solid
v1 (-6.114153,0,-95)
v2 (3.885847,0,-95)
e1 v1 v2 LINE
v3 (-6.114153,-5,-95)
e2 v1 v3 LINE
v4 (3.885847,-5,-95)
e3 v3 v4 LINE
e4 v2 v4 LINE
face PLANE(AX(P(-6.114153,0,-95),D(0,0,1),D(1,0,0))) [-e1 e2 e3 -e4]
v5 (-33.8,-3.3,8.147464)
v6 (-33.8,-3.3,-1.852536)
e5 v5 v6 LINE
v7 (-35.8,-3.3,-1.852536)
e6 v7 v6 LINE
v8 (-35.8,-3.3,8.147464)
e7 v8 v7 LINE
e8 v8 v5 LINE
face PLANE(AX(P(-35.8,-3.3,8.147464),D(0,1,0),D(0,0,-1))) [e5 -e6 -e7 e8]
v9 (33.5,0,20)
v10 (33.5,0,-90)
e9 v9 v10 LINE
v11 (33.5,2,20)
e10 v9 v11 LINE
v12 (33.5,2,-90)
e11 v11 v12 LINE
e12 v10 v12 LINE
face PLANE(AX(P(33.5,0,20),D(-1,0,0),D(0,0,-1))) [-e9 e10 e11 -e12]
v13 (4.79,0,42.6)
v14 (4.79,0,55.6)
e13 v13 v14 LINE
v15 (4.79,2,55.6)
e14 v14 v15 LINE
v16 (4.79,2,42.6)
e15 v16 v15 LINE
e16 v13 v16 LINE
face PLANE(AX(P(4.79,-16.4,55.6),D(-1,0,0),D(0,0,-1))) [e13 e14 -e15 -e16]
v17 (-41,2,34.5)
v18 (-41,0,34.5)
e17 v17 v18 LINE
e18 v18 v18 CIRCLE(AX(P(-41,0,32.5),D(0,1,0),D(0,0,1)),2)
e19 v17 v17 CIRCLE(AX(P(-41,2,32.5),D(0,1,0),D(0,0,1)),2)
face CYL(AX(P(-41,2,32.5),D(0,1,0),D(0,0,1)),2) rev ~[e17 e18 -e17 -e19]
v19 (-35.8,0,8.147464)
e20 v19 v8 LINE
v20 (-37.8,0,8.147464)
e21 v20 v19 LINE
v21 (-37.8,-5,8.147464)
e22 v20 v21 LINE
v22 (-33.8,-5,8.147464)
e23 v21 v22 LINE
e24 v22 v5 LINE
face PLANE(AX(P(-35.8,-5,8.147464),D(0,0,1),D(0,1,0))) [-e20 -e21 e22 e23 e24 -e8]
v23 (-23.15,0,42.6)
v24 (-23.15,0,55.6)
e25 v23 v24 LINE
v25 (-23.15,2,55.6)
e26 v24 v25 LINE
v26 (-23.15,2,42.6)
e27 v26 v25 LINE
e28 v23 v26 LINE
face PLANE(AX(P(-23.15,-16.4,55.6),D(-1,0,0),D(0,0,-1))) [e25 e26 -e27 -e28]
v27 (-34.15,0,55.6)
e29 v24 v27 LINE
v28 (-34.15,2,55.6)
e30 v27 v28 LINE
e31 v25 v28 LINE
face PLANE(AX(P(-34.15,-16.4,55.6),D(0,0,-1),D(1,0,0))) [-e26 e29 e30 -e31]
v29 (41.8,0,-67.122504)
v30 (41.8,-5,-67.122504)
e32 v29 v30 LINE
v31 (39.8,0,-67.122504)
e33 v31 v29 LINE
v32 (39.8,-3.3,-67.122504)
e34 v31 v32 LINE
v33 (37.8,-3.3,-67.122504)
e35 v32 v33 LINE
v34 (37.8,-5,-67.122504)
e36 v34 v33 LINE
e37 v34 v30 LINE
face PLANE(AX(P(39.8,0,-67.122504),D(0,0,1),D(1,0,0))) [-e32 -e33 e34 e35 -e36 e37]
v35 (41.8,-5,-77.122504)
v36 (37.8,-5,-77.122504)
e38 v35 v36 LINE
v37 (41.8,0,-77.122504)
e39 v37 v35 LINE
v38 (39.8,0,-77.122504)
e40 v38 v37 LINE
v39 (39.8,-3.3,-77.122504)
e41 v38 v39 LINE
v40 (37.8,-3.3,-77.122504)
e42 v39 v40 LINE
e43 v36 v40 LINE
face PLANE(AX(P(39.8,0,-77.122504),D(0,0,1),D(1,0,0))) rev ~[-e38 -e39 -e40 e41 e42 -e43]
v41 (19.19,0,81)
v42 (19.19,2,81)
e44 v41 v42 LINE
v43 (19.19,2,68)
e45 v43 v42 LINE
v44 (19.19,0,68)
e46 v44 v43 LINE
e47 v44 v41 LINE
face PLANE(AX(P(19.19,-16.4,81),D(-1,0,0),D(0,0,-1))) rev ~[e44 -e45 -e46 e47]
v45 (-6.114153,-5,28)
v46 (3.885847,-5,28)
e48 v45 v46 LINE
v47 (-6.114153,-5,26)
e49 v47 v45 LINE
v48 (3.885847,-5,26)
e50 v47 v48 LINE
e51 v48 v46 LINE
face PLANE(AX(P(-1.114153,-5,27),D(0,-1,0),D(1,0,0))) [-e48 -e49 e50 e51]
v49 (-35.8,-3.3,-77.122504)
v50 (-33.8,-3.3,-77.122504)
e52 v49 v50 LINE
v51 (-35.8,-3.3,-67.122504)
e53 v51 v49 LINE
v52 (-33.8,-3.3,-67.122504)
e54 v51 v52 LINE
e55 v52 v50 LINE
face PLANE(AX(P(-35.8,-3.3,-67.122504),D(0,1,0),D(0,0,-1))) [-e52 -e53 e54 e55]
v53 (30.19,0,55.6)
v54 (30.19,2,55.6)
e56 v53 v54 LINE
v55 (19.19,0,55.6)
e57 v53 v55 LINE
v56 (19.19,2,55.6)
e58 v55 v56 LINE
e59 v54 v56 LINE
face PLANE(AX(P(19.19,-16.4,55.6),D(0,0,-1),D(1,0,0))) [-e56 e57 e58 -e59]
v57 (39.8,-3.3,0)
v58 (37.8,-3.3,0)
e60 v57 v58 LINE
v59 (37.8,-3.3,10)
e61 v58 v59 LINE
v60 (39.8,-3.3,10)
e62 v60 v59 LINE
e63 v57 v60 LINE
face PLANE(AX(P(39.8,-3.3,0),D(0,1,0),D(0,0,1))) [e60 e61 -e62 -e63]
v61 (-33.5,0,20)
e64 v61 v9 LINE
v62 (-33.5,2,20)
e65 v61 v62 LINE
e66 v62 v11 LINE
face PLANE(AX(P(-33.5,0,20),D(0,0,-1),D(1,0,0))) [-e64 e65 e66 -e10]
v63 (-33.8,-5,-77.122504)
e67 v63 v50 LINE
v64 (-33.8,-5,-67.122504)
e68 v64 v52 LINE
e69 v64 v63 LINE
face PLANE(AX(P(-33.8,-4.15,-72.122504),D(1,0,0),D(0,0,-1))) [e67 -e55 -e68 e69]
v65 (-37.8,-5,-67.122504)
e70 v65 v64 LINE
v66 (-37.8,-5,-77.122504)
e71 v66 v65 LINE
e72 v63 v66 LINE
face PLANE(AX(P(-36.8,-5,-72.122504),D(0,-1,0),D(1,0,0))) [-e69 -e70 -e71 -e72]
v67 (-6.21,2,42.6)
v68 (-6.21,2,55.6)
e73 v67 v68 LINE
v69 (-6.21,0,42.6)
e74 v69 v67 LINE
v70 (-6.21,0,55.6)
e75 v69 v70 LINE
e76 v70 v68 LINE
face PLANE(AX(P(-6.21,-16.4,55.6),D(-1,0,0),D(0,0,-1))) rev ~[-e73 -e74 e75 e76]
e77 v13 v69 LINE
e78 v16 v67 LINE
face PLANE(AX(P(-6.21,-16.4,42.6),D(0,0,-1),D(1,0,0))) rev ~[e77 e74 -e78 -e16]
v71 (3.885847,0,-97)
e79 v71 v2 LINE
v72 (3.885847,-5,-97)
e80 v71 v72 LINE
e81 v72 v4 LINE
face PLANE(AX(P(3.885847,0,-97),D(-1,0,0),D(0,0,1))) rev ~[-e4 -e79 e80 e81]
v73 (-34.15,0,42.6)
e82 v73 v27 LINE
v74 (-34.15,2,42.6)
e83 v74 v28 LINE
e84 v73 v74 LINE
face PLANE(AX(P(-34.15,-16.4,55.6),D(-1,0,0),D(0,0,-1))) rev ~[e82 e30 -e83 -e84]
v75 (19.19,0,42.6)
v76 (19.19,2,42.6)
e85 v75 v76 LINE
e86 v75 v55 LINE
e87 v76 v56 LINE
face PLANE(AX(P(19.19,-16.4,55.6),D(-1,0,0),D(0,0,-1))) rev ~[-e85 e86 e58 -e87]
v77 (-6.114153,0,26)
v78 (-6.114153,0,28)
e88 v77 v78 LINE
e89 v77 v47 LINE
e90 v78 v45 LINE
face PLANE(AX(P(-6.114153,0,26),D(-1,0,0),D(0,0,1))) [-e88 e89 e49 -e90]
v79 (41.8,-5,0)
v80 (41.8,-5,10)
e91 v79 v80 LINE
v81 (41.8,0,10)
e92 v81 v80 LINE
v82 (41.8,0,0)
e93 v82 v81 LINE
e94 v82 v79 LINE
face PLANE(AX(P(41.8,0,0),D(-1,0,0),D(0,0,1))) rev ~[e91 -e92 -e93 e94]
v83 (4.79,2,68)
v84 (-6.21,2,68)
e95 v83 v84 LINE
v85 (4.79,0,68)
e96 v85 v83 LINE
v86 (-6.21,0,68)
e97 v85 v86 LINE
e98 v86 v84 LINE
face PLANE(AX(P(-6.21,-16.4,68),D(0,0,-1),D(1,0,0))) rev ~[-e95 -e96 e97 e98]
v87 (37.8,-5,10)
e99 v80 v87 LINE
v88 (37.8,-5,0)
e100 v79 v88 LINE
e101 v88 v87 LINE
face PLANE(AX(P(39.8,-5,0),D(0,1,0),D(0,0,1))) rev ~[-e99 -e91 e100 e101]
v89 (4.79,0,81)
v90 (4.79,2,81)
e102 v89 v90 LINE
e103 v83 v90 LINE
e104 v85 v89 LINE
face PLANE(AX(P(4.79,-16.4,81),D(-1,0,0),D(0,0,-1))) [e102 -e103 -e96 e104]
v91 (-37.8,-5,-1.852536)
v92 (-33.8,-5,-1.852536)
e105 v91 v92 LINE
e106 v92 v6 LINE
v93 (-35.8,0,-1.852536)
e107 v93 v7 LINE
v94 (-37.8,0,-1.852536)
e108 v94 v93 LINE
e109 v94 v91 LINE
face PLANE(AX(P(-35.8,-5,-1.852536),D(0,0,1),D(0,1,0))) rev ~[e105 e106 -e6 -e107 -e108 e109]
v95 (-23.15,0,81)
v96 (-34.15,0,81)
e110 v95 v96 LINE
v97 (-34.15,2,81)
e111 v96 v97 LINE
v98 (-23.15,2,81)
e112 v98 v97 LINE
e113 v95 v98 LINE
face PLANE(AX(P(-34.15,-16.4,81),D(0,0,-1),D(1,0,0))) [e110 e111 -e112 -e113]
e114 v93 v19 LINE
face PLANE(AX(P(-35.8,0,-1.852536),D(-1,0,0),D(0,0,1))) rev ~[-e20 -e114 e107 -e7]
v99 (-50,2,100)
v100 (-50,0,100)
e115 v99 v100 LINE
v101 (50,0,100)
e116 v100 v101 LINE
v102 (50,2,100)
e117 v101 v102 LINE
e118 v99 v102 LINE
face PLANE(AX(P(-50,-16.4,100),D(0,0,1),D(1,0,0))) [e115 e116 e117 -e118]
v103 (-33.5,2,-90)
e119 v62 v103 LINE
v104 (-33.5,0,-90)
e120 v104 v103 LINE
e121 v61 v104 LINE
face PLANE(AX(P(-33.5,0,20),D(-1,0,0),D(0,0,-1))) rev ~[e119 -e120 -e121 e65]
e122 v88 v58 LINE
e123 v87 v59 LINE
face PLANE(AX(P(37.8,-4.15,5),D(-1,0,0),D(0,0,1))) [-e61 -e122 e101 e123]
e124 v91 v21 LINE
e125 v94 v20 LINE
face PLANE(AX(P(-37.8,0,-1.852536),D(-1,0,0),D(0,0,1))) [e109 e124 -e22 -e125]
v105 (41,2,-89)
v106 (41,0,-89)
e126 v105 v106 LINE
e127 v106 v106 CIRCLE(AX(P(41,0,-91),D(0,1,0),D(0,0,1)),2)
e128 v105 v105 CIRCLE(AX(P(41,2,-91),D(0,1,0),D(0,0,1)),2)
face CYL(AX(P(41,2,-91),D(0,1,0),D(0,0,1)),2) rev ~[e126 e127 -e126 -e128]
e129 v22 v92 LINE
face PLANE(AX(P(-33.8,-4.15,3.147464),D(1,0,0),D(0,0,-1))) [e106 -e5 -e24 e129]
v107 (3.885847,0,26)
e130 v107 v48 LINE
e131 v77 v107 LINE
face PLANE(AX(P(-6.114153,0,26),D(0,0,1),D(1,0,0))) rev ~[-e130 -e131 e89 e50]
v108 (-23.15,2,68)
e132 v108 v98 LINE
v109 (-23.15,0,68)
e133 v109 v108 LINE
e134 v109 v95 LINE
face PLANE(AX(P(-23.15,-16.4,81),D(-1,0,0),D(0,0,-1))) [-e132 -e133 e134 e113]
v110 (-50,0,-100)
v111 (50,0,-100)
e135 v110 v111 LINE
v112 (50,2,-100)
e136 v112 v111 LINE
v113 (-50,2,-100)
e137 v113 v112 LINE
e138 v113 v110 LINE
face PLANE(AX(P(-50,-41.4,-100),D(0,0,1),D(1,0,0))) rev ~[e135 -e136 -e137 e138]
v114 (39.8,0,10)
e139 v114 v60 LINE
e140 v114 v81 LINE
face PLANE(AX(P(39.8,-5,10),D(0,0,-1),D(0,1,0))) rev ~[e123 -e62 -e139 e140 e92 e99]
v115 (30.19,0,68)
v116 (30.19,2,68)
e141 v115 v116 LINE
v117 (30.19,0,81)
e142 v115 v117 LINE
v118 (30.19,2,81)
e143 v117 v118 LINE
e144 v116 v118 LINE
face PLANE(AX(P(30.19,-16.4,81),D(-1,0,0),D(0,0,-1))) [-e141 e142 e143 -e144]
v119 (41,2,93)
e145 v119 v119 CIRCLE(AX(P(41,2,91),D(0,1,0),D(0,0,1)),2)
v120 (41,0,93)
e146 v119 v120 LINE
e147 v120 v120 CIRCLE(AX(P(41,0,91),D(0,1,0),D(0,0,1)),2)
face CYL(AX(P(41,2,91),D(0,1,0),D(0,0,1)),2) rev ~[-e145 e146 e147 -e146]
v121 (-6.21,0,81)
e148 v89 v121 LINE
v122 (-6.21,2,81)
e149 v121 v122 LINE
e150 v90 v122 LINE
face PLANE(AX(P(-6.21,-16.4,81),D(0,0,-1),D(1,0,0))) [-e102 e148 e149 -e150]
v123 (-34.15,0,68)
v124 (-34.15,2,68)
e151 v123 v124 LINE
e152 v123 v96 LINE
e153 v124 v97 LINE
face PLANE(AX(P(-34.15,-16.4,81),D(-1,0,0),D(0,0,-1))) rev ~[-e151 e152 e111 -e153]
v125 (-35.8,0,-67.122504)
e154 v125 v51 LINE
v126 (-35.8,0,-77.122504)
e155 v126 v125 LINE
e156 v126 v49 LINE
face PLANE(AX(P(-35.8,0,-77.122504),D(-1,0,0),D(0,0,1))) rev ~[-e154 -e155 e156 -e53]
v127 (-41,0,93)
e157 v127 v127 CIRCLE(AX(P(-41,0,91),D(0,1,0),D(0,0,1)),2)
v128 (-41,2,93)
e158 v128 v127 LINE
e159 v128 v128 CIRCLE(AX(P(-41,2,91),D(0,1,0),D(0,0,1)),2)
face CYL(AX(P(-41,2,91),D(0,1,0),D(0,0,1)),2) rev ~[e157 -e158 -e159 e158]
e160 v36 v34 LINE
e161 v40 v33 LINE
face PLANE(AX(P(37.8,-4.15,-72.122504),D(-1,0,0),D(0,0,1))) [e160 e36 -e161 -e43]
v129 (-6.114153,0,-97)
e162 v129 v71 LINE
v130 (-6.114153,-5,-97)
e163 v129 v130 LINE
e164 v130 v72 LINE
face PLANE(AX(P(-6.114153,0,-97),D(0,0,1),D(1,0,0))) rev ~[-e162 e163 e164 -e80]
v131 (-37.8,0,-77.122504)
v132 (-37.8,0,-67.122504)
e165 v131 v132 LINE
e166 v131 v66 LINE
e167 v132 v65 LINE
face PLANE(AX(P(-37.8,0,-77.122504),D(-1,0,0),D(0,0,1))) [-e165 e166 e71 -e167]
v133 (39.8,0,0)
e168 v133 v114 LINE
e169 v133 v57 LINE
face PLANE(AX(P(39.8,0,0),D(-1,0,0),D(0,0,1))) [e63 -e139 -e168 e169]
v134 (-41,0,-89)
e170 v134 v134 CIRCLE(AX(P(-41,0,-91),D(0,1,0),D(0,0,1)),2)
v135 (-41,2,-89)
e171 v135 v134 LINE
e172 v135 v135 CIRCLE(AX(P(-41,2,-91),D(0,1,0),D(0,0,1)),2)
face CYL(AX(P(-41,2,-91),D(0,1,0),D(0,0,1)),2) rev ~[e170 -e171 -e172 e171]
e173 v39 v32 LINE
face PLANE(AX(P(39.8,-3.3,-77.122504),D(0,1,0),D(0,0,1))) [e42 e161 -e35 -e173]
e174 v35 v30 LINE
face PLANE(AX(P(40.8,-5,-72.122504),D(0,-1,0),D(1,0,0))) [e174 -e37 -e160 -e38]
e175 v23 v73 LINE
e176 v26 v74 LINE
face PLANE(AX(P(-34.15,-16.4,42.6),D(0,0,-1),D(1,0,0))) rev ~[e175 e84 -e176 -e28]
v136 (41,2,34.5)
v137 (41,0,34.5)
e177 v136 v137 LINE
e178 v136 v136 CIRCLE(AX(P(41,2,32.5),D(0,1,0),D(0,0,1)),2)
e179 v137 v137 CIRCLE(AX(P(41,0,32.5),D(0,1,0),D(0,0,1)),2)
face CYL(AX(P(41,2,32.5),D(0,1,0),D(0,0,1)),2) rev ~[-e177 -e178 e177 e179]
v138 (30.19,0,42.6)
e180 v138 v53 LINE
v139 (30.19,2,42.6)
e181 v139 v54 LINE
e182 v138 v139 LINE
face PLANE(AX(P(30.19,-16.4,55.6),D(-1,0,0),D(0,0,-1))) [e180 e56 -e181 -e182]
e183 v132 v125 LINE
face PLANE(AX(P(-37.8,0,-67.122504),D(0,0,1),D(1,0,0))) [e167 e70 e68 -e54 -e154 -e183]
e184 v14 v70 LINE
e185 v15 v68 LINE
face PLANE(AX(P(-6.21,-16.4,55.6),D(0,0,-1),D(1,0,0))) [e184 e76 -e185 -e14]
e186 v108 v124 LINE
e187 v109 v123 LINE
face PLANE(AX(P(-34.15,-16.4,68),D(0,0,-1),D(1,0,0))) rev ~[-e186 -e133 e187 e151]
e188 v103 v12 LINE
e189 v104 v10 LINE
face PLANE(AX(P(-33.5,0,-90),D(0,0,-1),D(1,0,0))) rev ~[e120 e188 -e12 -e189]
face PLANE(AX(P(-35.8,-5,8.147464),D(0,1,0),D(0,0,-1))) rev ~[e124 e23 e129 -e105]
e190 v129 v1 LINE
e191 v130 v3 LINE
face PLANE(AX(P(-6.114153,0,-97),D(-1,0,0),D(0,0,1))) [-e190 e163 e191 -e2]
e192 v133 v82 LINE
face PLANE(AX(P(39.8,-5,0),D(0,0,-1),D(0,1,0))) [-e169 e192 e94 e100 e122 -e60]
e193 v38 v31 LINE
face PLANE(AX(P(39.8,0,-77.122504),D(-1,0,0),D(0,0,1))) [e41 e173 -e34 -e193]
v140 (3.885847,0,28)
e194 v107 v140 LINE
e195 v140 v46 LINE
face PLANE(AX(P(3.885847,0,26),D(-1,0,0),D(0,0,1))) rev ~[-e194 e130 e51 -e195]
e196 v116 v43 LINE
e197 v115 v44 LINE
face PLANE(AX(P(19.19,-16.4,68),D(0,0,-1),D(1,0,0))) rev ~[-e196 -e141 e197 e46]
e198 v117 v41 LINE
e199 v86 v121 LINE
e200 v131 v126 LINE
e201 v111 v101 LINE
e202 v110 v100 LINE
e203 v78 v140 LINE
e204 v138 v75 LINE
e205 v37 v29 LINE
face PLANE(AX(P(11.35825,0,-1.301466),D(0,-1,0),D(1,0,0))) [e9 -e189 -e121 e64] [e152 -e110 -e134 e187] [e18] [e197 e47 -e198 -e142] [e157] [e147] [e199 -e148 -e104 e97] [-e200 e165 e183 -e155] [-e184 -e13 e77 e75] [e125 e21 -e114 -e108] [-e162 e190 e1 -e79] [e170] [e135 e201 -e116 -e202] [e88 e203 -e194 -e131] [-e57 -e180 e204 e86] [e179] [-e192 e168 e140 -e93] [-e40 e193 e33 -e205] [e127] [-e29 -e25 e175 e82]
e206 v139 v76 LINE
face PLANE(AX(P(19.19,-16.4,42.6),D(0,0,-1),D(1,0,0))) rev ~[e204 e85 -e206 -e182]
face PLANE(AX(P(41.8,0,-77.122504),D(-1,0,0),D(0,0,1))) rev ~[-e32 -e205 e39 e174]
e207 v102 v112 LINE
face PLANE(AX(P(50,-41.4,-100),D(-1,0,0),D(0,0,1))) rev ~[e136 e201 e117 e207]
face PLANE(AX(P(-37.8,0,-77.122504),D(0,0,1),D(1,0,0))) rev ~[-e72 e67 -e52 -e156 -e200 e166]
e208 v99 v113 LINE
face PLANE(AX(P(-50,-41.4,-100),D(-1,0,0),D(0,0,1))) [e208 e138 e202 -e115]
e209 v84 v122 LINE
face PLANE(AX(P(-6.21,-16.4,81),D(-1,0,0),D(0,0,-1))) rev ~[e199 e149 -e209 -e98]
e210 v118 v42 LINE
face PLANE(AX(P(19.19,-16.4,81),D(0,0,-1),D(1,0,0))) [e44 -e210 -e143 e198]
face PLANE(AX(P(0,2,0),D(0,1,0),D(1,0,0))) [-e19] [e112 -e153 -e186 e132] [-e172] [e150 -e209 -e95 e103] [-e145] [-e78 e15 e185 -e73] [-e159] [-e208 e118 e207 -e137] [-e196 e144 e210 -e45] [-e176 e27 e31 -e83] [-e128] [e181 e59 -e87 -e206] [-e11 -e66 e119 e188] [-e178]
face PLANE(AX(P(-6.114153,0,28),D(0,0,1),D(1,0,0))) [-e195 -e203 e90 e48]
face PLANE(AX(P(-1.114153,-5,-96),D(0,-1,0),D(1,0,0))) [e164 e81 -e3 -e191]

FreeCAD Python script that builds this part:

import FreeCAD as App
import Part
import Sketcher
from FreeCAD import Vector

doc = App.newDocument("Part")
body = doc.addObject("PartDesign::Body", "Body")

sketch1 = body.newObject("Sketcher::SketchObject", "Sketch")
sketch1.AttachmentSupport = (doc.getObject("XZ_Plane"), [""])
sketch1.MapMode = "FlatFace"
sketch1.addGeometry([
    Part.LineSegment(Vector(-50, -100, 0), Vector(-50, 100, 0)),
    Part.LineSegment(Vector(-50, 100, 0), Vector(50, 100, 0)),
    Part.LineSegment(Vector(50, 100, 0), Vector(50, -100, 0)),
    Part.LineSegment(Vector(50, -100, 0), Vector(-50, -100, 0)),
    Part.LineSegment(Vector(34, 20, 0), Vector(-34, 20, 0)),
    Part.LineSegment(Vector(-34, 20, 0), Vector(-34, -90, 0)),
    Part.LineSegment(Vector(-34, -90, 0), Vector(34, -90, 0)),
    Part.LineSegment(Vector(34, -90, 0), Vector(34, 20, 0)),
], False)
sketch1.addConstraint([
    Sketcher.Constraint("Coincident", 0, 2, 1, 1),
    Sketcher.Constraint("Coincident", 1, 2, 2, 1),
    Sketcher.Constraint("Coincident", 2, 2, 3, 1),
    Sketcher.Constraint("Coincident", 3, 2, 0, 1),
    Sketcher.Constraint("Coincident", 4, 2, 5, 1),
    Sketcher.Constraint("Coincident", 5, 2, 6, 1),
    Sketcher.Constraint("Coincident", 6, 2, 7, 1),
    Sketcher.Constraint("Coincident", 7, 2, 4, 1),
    Sketcher.Constraint("Vertical", 0),
    Sketcher.Constraint("Horizontal", 1),
    Sketcher.Constraint("Vertical", 2),
    Sketcher.Constraint("Horizontal", 3),
    Sketcher.Constraint("Horizontal", 4),
    Sketcher.Constraint("Vertical", 5),
    Sketcher.Constraint("Horizontal", 6),
    Sketcher.Constraint("Vertical", 7),
    Sketcher.Constraint("Symmetric", 0, 2, 2, 2, -1, 1),
    Sketcher.Constraint("DistanceX", 1, 1, 1, 2, 100.0),
    Sketcher.Constraint("DistanceX", 4, 2, 4, 1, 67.0),
    Sketcher.Constraint("DistanceY", 0, 1, 0, 2, 200.0),
    Sketcher.Constraint("DistanceY", 5, 2, 5, 1, 110.0),
    Sketcher.Constraint("DistanceY", -1, 1, 4, 2, 20.0),
    Sketcher.Constraint("DistanceX", 4, 2, -1, 1, 33.5),
])
pad1 = body.newObject("PartDesign::Pad", "Pad")
pad1.Profile = sketch1
pad1.Length = 2
pad1.Reversed = True

sketch2 = body.newObject("Sketcher::SketchObject", "Sketch001")
sketch2.AttachmentSupport = (doc.getObject("XZ_Plane"), [""])
sketch2.MapMode = "FlatFace"
sketch2.addGeometry([
    Part.LineSegment(Vector(-50, 100, 0), Vector(-50, -100, 0)),
    Part.LineSegment(Vector(-50, -100, 0), Vector(50, -100, 0)),
    Part.LineSegment(Vector(50, -100, 0), Vector(50, 100, 0)),
    Part.LineSegment(Vector(50, 100, 0), Vector(-50, 100, 0)),
    Part.LineSegment(Vector(47, -97, 0), Vector(-47, -97, 0)),
    Part.LineSegment(Vector(-47, -97, 0), Vector(-47, 97, 0)),
    Part.LineSegment(Vector(-47, 97, 0), Vector(47, 97, 0)),
    Part.LineSegment(Vector(47, 97, 0), Vector(47, -97, 0)),
], False)
sketch2.addConstraint([
    Sketcher.Constraint("Coincident", 0, 2, 1, 1),
    Sketcher.Constraint("Coincident", 1, 2, 2, 1),
    Sketcher.Constraint("Coincident", 2, 2, 3, 1),
    Sketcher.Constraint("Coincident", 3, 2, 0, 1),
    Sketcher.Constraint("Coincident", 4, 2, 5, 1),
    Sketcher.Constraint("Coincident", 5, 2, 6, 1),
    Sketcher.Constraint("Coincident", 6, 2, 7, 1),
    Sketcher.Constraint("Coincident", 7, 2, 4, 1),
    Sketcher.Constraint("Vertical", 0),
    Sketcher.Constraint("Horizontal", 1),
    Sketcher.Constraint("Vertical", 2),
    Sketcher.Constraint("Horizontal", 3),
    Sketcher.Constraint("Horizontal", 4),
    Sketcher.Constraint("Vertical", 5),
    Sketcher.Constraint("Horizontal", 6),
    Sketcher.Constraint("Vertical", 7),
    Sketcher.Constraint("Symmetric", 0, 2, 2, 2, -1, 1),
    Sketcher.Constraint("Symmetric", 4, 2, 6, 2, -1, 1),
    Sketcher.Constraint("DistanceX", 1, 1, 1, 2, 100.0),
    Sketcher.Constraint("DistanceX", 4, 2, 4, 1, 94.0),
    Sketcher.Constraint("DistanceY", 0, 2, 0, 1, 200.0),
    Sketcher.Constraint("DistanceY", 5, 1, 5, 2, 194.0),
])
pad2 = body.newObject("PartDesign::Pad", "Pad001")
pad2.Profile = sketch2
pad2.Length = 16.4

sketch3 = body.newObject("Sketcher::SketchObject", "Sketch002")
sketch3.AttachmentSupport = (doc.getObject("XZ_Plane"), [""])
sketch3.MapMode = "FlatFace"
sketch3.AttachmentOffset = App.Placement(Vector(0, 0, 16.4), App.Rotation())
sketch3.addGeometry([
    Part.LineSegment(Vector(50, 100, 0), Vector(-50, 100, 0)),
    Part.LineSegment(Vector(-50, 100, 0), Vector(-50, -9, 0)),
    Part.LineSegment(Vector(-50, -9, 0), Vector(-30, -9, 0)),
    Part.LineSegment(Vector(-30, -9, 0), Vector(-30, 1, 0)),
    Part.LineSegment(Vector(-30, 1, 0), Vector(-35, 1, 0)),
    Part.LineSegment(Vector(-35, 1, 0), Vector(-35, 80, 0)),
    Part.LineSegment(Vector(-35, 80, 0), Vector(35, 80, 0)),
    Part.LineSegment(Vector(35, 80, 0), Vector(35, 1, 0)),
    Part.LineSegment(Vector(35, 1, 0), Vector(30, 1, 0)),
    Part.LineSegment(Vector(30, 1, 0), Vector(30, -9, 0)),
    Part.LineSegment(Vector(30, -9, 0), Vector(50, -9, 0)),
    Part.LineSegment(Vector(50, -9, 0), Vector(50, 100, 0)),
    Part.Circle(Vector(35, -4, 0), Vector(0, 0, 1), 1.1),
    Part.Circle(Vector(-35, -4, 0), Vector(0, 0, 1), 1.1),
    Part.Circle(Vector(35, 85, 0), Vector(0, 0, 1), 1.1),
    Part.Circle(Vector(-35, 85, 0), Vector(0, 0, 1), 1.1),
], False)
sketch3.addConstraint([
    Sketcher.Constraint("Coincident", 0, 2, 1, 1),
    Sketcher.Constraint("Coincident", 1, 2, 2, 1),
    Sketcher.Constraint("Coincident", 2, 2, 3, 1),
    Sketcher.Constraint("Coincident", 3, 2, 4, 1),
    Sketcher.Constraint("Coincident", 4, 2, 5, 1),
    Sketcher.Constraint("Coincident", 5, 2, 6, 1),
    Sketcher.Constraint("Coincident", 6, 2, 7, 1),
    Sketcher.Constraint("Coincident", 7, 2, 8, 1),
    Sketcher.Constraint("Coincident", 8, 2, 9, 1),
    Sketcher.Constraint("Coincident", 9, 2, 10, 1),
    Sketcher.Constraint("Coincident", 10, 2, 11, 1),
    Sketcher.Constraint("Coincident", 11, 2, 0, 1),
    Sketcher.Constraint("Horizontal", 0),
    Sketcher.Constraint("Vertical", 1),
    Sketcher.Constraint("Horizontal", 2),
    Sketcher.Constraint("Vertical", 3),
    Sketcher.Constraint("Horizontal", 4),
    Sketcher.Constraint("Vertical", 5),
    Sketcher.Constraint("Horizontal", 6),
    Sketcher.Constraint("Vertical", 7),
    Sketcher.Constraint("Horizontal", 8),
    Sketcher.Constraint("Vertical", 9),
    Sketcher.Constraint("Horizontal", 10),
    Sketcher.Constraint("Vertical", 11),
    Sketcher.Constraint("Equal", 12, 13),
    Sketcher.Constraint("Equal", 13, 14),
    Sketcher.Constraint("Equal", 14, 15),
    Sketcher.Constraint("Symmetric", 12, 3, 13, 3, -2),
    Sketcher.Constraint("Symmetric", 14, 3, 15, 3, -2),
    Sketcher.Constraint("Symmetric", 4, 2, 7, 2, -2),
    Sketcher.Constraint("Symmetric", 2, 2, 9, 2, -2),
    Sketcher.Constraint("Vertical", 12, 3, 14, 3),
    Sketcher.Constraint("Vertical", 15, 3, 4, 2),
    Sketcher.Constraint("Equal", 2, 10),
    Sketcher.Constraint("Diameter", 12, 2.3),
    Sketcher.Constraint("DistanceX", 0, 2, 0, 1, 100.0),
    Sketcher.Constraint("DistanceX", 2, 1, 2, 2, 20.0),
    Sketcher.Constraint("DistanceX", 4, 2, 4, 1, 5.0),
    Sketcher.Constraint("DistanceY", 1, 2, 1, 1, 109.0),
    Sketcher.Constraint("DistanceY", 3, 1, 3, 2, 10.0),
    Sketcher.Constraint("DistanceY", 5, 1, 5, 2, 79.0),
    Sketcher.Constraint("DistanceY", 12, 3, -1, 1, 4.0),
    Sketcher.Constraint("DistanceY", -1, 1, 14, 3, 85.0),
    Sketcher.Constraint("DistanceY", -1, 1, 0, 2, 100.0),
])
pad3 = body.newObject("PartDesign::Pad", "Pad002")
pad3.Profile = sketch3
pad3.Length = 2

sketch4 = body.newObject("Sketcher::SketchObject", "Sketch003")
sketch4.AttachmentSupport = (doc.getObject("XZ_Plane"), [""])
sketch4.MapMode = "FlatFace"
sketch4.AttachmentOffset = App.Placement(Vector(0, 0, 16.4), App.Rotation())
sketch4.addGeometry([
    Part.LineSegment(Vector(-50, -100, 0), Vector(50, -100, 0)),
    Part.LineSegment(Vector(50, -100, 0), Vector(50, 10, 0)),
    Part.LineSegment(Vector(50, 10, 0), Vector(47, 10, 0)),
    Part.LineSegment(Vector(47, 10, 0), Vector(47, -97, 0)),
    Part.LineSegment(Vector(47, -97, 0), Vector(-47, -97, 0)),
    Part.LineSegment(Vector(-47, -97, 0), Vector(-47, 10, 0)),
    Part.LineSegment(Vector(-47, 10, 0), Vector(-50, 10, 0)),
    Part.LineSegment(Vector(-50, 10, 0), Vector(-50, -100, 0)),
], False)
sketch4.addConstraint([
    Sketcher.Constraint("Coincident", 0, 2, 1, 1),
    Sketcher.Constraint("Coincident", 1, 2, 2, 1),
    Sketcher.Constraint("Coincident", 2, 2, 3, 1),
    Sketcher.Constraint("Coincident", 3, 2, 4, 1),
    Sketcher.Constraint("Coincident", 4, 2, 5, 1),
    Sketcher.Constraint("Coincident", 5, 2, 6, 1),
    Sketcher.Constraint("Coincident", 6, 2, 7, 1),
    Sketcher.Constraint("Coincident", 7, 2, 0, 1),
    Sketcher.Constraint("Horizontal", 0),
    Sketcher.Constraint("Vertical", 1),
    Sketcher.Constraint("Horizontal", 2),
    Sketcher.Constraint("Vertical", 3),
    Sketcher.Constraint("Horizontal", 4),
    Sketcher.Constraint("Vertical", 5),
    Sketcher.Constraint("Horizontal", 6),
    Sketcher.Constraint("Vertical", 7),
    Sketcher.Constraint("Symmetric", 2, 2, 5, 2, -2),
    Sketcher.Constraint("Equal", 2, 6),
    Sketcher.Constraint("DistanceX", 0, 1, 0, 2, 100.0),
    Sketcher.Constraint("DistanceX", 2, 2, 2, 1, 3.0),
    Sketcher.Constraint("DistanceY", 1, 1, 1, 2, 110.0),
    Sketcher.Constraint("DistanceY", 3, 2, 3, 1, 107.0),
    Sketcher.Constraint("DistanceY", 0, 2, -1, 1, 100.0),
])
pad4 = body.newObject("PartDesign::Pad", "Pad003")
pad4.Profile = sketch4
pad4.Length = 25

sketch5 = body.newObject("Sketcher::SketchObject", "Sketch004")
sketch5.AttachmentSupport = (doc.getObject("XZ_Plane"), [""])
sketch5.MapMode = "FlatFace"
sketch5.AttachmentOffset = App.Placement(Vector(0, 0, 41.4), App.Rotation())
sketch5.addGeometry([
    Part.LineSegment(Vector(-50, 10, 0), Vector(-50, -100, 0)),
    Part.LineSegment(Vector(-50, -100, 0), Vector(50, -100, 0)),
    Part.LineSegment(Vector(50, -100, 0), Vector(50, 10, 0)),
    Part.LineSegment(Vector(50, 10, 0), Vector(-50, 10, 0)),
], False)
sketch5.addConstraint([
    Sketcher.Constraint("Coincident", 0, 2, 1, 1),
    Sketcher.Constraint("Coincident", 1, 2, 2, 1),
    Sketcher.Constraint("Coincident", 2, 2, 3, 1),
    Sketcher.Constraint("Coincident", 3, 2, 0, 1),
    Sketcher.Constraint("Vertical", 0),
    Sketcher.Constraint("Horizontal", 1),
    Sketcher.Constraint("Vertical", 2),
    Sketcher.Constraint("Horizontal", 3),
    Sketcher.Constraint("DistanceX", 1, 1, 1, 2, 100.0),
    Sketcher.Constraint("DistanceY", 0, 2, 0, 1, 110.0),
    Sketcher.Constraint("DistanceX", 0, 2, -1, 1, 50.0),
    Sketcher.Constraint("DistanceY", 0, 2, -1, 1, 100.0),
])
pad5 = body.newObject("PartDesign::Pad", "Pad004")
pad5.Profile = sketch5
pad5.Length = 3

sketch6 = body.newObject("Sketcher::SketchObject", "Sketch005")
sketch6.AttachmentSupport = (doc.getObject("XZ_Plane"), [""])
sketch6.MapMode = "FlatFace"
sketch6.AttachmentOffset = App.Placement(Vector(0, 0, 16.4), App.Rotation())
sketch6.addGeometry([
    Part.LineSegment(Vector(-34, 68, 0), Vector(-34, 81, 0)),
    Part.LineSegment(Vector(-34, 81, 0), Vector(-23, 81, 0)),
    Part.LineSegment(Vector(-23, 81, 0), Vector(-23, 68, 0)),
    Part.LineSegment(Vector(-23, 68, 0), Vector(-34, 68, 0)),
    Part.LineSegment(Vector(-6, 68, 0), Vector(-6, 81, 0)),
    Part.LineSegment(Vector(-6, 81, 0), Vector(5, 81, 0)),
    Part.LineSegment(Vector(5, 81, 0), Vector(5, 68, 0)),
    Part.LineSegment(Vector(5, 68, 0), Vector(-6, 68, 0)),
    Part.LineSegment(Vector(19, 68, 0), Vector(19, 81, 0)),
    Part.LineSegment(Vector(19, 81, 0), Vector(30, 81, 0)),
    Part.LineSegment(Vector(30, 81, 0), Vector(30, 68, 0)),
    Part.LineSegment(Vector(30, 68, 0), Vector(19, 68, 0)),
    Part.LineSegment(Vector(-34, 43, 0), Vector(-34, 56, 0)),
    Part.LineSegment(Vector(-34, 56, 0), Vector(-23, 56, 0)),
    Part.LineSegment(Vector(-23, 56, 0), Vector(-23, 43, 0)),
    Part.LineSegment(Vector(-23, 43, 0), Vector(-34, 43, 0)),
    Part.LineSegment(Vector(-6, 43, 0), Vector(-6, 56, 0)),
    Part.LineSegment(Vector(-6, 56, 0), Vector(5, 56, 0)),
    Part.LineSegment(Vector(5, 56, 0), Vector(5, 43, 0)),
    Part.LineSegment(Vector(5, 43, 0), Vector(-6, 43, 0)),
    Part.LineSegment(Vector(19, 43, 0), Vector(19, 56, 0)),
    Part.LineSegment(Vector(19, 56, 0), Vector(30, 56, 0)),
    Part.LineSegment(Vector(30, 56, 0), Vector(30, 43, 0)),
    Part.LineSegment(Vector(30, 43, 0), Vector(19, 43, 0)),
], False)
sketch6.addConstraint([
    Sketcher.Constraint("Coincident", 0, 2, 1, 1),
    Sketcher.Constraint("Coincident", 1, 2, 2, 1),
    Sketcher.Constraint("Coincident", 2, 2, 3, 1),
    Sketcher.Constraint("Coincident", 3, 2, 0, 1),
    Sketcher.Constraint("Coincident", 4, 2, 5, 1),
    Sketcher.Constraint("Coincident", 5, 2, 6, 1),
    Sketcher.Constraint("Coincident", 6, 2, 7, 1),
    Sketcher.Constraint("Coincident", 7, 2, 4, 1),
    Sketcher.Constraint("Coincident", 8, 2, 9, 1),
    Sketcher.Constraint("Coincident", 9, 2, 10, 1),
    Sketcher.Constraint("Coincident", 10, 2, 11, 1),
    Sketcher.Constraint("Coincident", 11, 2, 8, 1),
    Sketcher.Constraint("Coincident", 12, 2, 13, 1),
    Sketcher.Constraint("Coincident", 13, 2, 14, 1),
    Sketcher.Constraint("Coincident", 14, 2, 15, 1),
    Sketcher.Constraint("Coincident", 15, 2, 12, 1),
    Sketcher.Constraint("Coincident", 16, 2, 17, 1),
    Sketcher.Constraint("Coincident", 17, 2, 18, 1),
    Sketcher.Constraint("Coincident", 18, 2, 19, 1),
    Sketcher.Constraint("Coincident", 19, 2, 16, 1),
    Sketcher.Constraint("Coincident", 20, 2, 21, 1),
    Sketcher.Constraint("Coincident", 21, 2, 22, 1),
    Sketcher.Constraint("Coincident", 22, 2, 23, 1),
    Sketcher.Constraint("Coincident", 23, 2, 20, 1),
    Sketcher.Constraint("Vertical", 0),
    Sketcher.Constraint("Horizontal", 1),
    Sketcher.Constraint("Vertical", 2),
    Sketcher.Constraint("Horizontal", 3),
    Sketcher.Constraint("Vertical", 4),
    Sketcher.Constraint("Horizontal", 5),
    Sketcher.Constraint("Vertical", 6),
    Sketcher.Constraint("Horizontal", 7),
    Sketcher.Constraint("Vertical", 8),
    Sketcher.Constraint("Horizontal", 9),
    Sketcher.Constraint("Vertical", 10),
    Sketcher.Constraint("Horizontal", 11),
    Sketcher.Constraint("Vertical", 12),
    Sketcher.Constraint("Horizontal", 13),
    Sketcher.Constraint("Vertical", 14),
    Sketcher.Constraint("Horizontal", 15),
    Sketcher.Constraint("Vertical", 16),
    Sketcher.Constraint("Horizontal", 17),
    Sketcher.Constraint("Vertical", 18),
    Sketcher.Constraint("Horizontal", 19),
    Sketcher.Constraint("Vertical", 20),
    Sketcher.Constraint("Horizontal", 21),
    Sketcher.Constraint("Vertical", 22),
    Sketcher.Constraint("Horizontal", 23),
    Sketcher.Constraint("Horizontal", 1, 2, 4, 2),
    Sketcher.Constraint("Horizontal", 3, 2, 6, 2),
    Sketcher.Constraint("Horizontal", 5, 2, 8, 2),
    Sketcher.Constraint("Horizontal", 7, 2, 10, 2),
    Sketcher.Constraint("Horizontal", 13, 2, 16, 2),
    Sketcher.Constraint("Horizontal", 15, 2, 18, 2),
    Sketcher.Constraint("Horizontal", 17, 2, 20, 2),
    Sketcher.Constraint("Horizontal", 19, 2, 22, 2),
    Sketcher.Constraint("Vertical", 3, 2, 12, 2),
    Sketcher.Constraint("Vertical", 2, 2, 13, 2),
    Sketcher.Constraint("Vertical", 7, 2, 16, 2),
    Sketcher.Constraint("Vertical", 6, 2, 17, 2),
    Sketcher.Constraint("Vertical", 11, 2, 20, 2),
    Sketcher.Constraint("Vertical", 10, 2, 21, 2),
    Sketcher.Constraint("Equal", 3, 5),
    Sketcher.Constraint("Equal", 7, 9),
    Sketcher.Constraint("Equal", 10, 12),
    Sketcher.Constraint("DistanceX", 1, 1, 1, 2, 11.0),
    Sketcher.Constraint("DistanceY", 0, 1, 0, 2, 13.0),
    Sketcher.Constraint("DistanceY", -1, 1, 0, 2, 81.0),
    Sketcher.Constraint("DistanceY", -1, 1, 12, 2, 55.6),
    Sketcher.Constraint("DistanceX", 5, 2, 8, 2, 14.4),
    Sketcher.Constraint("DistanceX", 0, 2, -1, 1, 34.15),
    Sketcher.Constraint("DistanceX", 4, 2, -1, 1, 6.21),
])
pocket1 = body.newObject("PartDesign::Pocket", "Pocket")
pocket1.Profile = sketch6
pocket1.Length = 36

sketch7 = body.newObject("Sketcher::SketchObject", "Sketch006")
sketch7.AttachmentSupport = (doc.getObject("XZ_Plane"), [""])
sketch7.MapMode = "FlatFace"
sketch7.AttachmentOffset = App.Placement(Vector(0, 0, 44.4), App.Rotation())
sketch7.addGeometry([
    Part.LineSegment(Vector(-43, 6.5, 0), Vector(-43, 3.5, 0)),
    Part.LineSegment(Vector(-43, 3.5, 0), Vector(-36, 3.5, 0)),
    Part.LineSegment(Vector(-36, 3.5, 0), Vector(-36, 6.5, 0)),
    Part.LineSegment(Vector(-36, 6.5, 0), Vector(-43, 6.5, 0)),
    Part.LineSegment(Vector(36, 6.5, 0), Vector(36, 3.5, 0)),
    Part.LineSegment(Vector(36, 3.5, 0), Vector(43, 3.5, 0)),
    Part.LineSegment(Vector(43, 3.5, 0), Vector(43, 6.5, 0)),
    Part.LineSegment(Vector(43, 6.5, 0), Vector(36, 6.5, 0)),
], False)
sketch7.addConstraint([
    Sketcher.Constraint("Coincident", 0, 2, 1, 1),
    Sketcher.Constraint("Coincident", 1, 2, 2, 1),
    Sketcher.Constraint("Coincident", 2, 2, 3, 1),
    Sketcher.Constraint("Coincident", 3, 2, 0, 1),
    Sketcher.Constraint("Coincident", 4, 2, 5, 1),
    Sketcher.Constraint("Coincident", 5, 2, 6, 1),
    Sketcher.Constraint("Coincident", 6, 2, 7, 1),
    Sketcher.Constraint("Coincident", 7, 2, 4, 1),
    Sketcher.Constraint("Vertical", 0),
    Sketcher.Constraint("Horizontal", 1),
    Sketcher.Constraint("Vertical", 2),
    Sketcher.Constraint("Horizontal", 3),
    Sketcher.Constraint("Vertical", 4),
    Sketcher.Constraint("Horizontal", 5),
    Sketcher.Constraint("Vertical", 6),
    Sketcher.Constraint("Horizontal", 7),
    Sketcher.Constraint("Symmetric", 1, 2, 4, 2, -2),
    Sketcher.Constraint("Symmetric", 3, 2, 6, 2, -2),
    Sketcher.Constraint("DistanceX", 1, 1, 1, 2, 7.0),
    Sketcher.Constraint("DistanceY", 0, 2, 0, 1, 3.0),
    Sketcher.Constraint("DistanceX", 0, 2, -1, 1, 43.0),
    Sketcher.Constraint("DistanceY", -1, 1, 0, 2, 3.5),
])
pocket2 = body.newObject("PartDesign::Pocket", "Pocket001")
pocket2.Profile = sketch7
pocket2.Length = 10

sketch8 = body.newObject("Sketcher::SketchObject", "Sketch007")
sketch8.AttachmentSupport = (doc.getObject("XZ_Plane"), [""])
sketch8.MapMode = "FlatFace"
sketch8.AttachmentOffset = App.Placement(Vector(0, 0, 18.4), App.Rotation())
sketch8.addGeometry([
    Part.LineSegment(Vector(-46.5, 95, 0), Vector(-46.5, 88, 0)),
    Part.LineSegment(Vector(-46.5, 88, 0), Vector(-43.5, 88, 0)),
    Part.LineSegment(Vector(-43.5, 88, 0), Vector(-43.5, 95, 0)),
    Part.LineSegment(Vector(-43.5, 95, 0), Vector(-46.5, 95, 0)),
    Part.LineSegment(Vector(43.5, 95, 0), Vector(43.5, 88, 0)),
    Part.LineSegment(Vector(43.5, 88, 0), Vector(46.5, 88, 0)),
    Part.LineSegment(Vector(46.5, 88, 0), Vector(46.5, 95, 0)),
    Part.LineSegment(Vector(46.5, 95, 0), Vector(43.5, 95, 0)),
], False)
sketch8.addConstraint([
    Sketcher.Constraint("Coincident", 0, 2, 1, 1),
    Sketcher.Constraint("Coincident", 1, 2, 2, 1),
    Sketcher.Constraint("Coincident", 2, 2, 3, 1),
    Sketcher.Constraint("Coincident", 3, 2, 0, 1),
    Sketcher.Constraint("Coincident", 4, 2, 5, 1),
    Sketcher.Constraint("Coincident", 5, 2, 6, 1),
    Sketcher.Constraint("Coincident", 6, 2, 7, 1),
    Sketcher.Constraint("Coincident", 7, 2, 4, 1),
    Sketcher.Constraint("Vertical", 0),
    Sketcher.Constraint("Horizontal", 1),
    Sketcher.Constraint("Vertical", 2),
    Sketcher.Constraint("Horizontal", 3),
    Sketcher.Constraint("Vertical", 4),
    Sketcher.Constraint("Horizontal", 5),
    Sketcher.Constraint("Vertical", 6),
    Sketcher.Constraint("Horizontal", 7),
    Sketcher.Constraint("Symmetric", 1, 2, 4, 2, -2),
    Sketcher.Constraint("Symmetric", 3, 2, 6, 2, -2),
    Sketcher.Constraint("DistanceX", 1, 1, 1, 2, 3.0),
    Sketcher.Constraint("DistanceY", 0, 2, 0, 1, 7.0),
    Sketcher.Constraint("DistanceY", -1, 1, 0, 2, 88.0),
    Sketcher.Constraint("DistanceX", 1, 2, 4, 2, 87.0),
])
pocket3 = body.newObject("PartDesign::Pocket", "Pocket002")
pocket3.Profile = sketch8
pocket3.Length = 10

sketch9 = body.newObject("Sketcher::SketchObject", "Sketch008")
sketch9.AttachmentSupport = (doc.getObject("XY_Plane"), [""])
sketch9.MapMode = "FlatFace"
sketch9.AttachmentOffset = App.Placement(Vector(0, 0, 100), App.Rotation())
sketch9.addGeometry([
    Part.LineSegment(Vector(-50, -1, 0), Vector(-50, -18, 0)),
    Part.LineSegment(Vector(-50, -18, 0), Vector(50, -18, 0)),
    Part.LineSegment(Vector(50, -18, 0), Vector(50, -1, 0)),
    Part.LineSegment(Vector(50, -1, 0), Vector(-50, -1, 0)),
], False)
sketch9.addConstraint([
    Sketcher.Constraint("Coincident", 0, 2, 1, 1),
    Sketcher.Constraint("Coincident", 1, 2, 2, 1),
    Sketcher.Constraint("Coincident", 2, 2, 3, 1),
    Sketcher.Constraint("Coincident", 3, 2, 0, 1),
    Sketcher.Constraint("Vertical", 0),
    Sketcher.Constraint("Horizontal", 1),
    Sketcher.Constraint("Vertical", 2),
    Sketcher.Constraint("Horizontal", 3),
    Sketcher.Constraint("DistanceX", 1, 1, 1, 2, 100.0),
    Sketcher.Constraint("DistanceY", 0, 2, 0, 1, 17.4),
    Sketcher.Constraint("DistanceX", 0, 2, -1, 1, 50.0),
    Sketcher.Constraint("DistanceY", 2, 2, -1, 1, 1.0),
])
pocket4 = body.newObject("PartDesign::Pocket", "Pocket003")
pocket4.Profile = sketch9
pocket4.Length = 3

sketch10 = body.newObject("Sketcher::SketchObject", "Sketch009")
sketch10.AttachmentSupport = (doc.getObject("XZ_Plane"), [""])
sketch10.MapMode = "FlatFace"
sketch10.addGeometry([
    Part.LineSegment(Vector(-62, 108, 0), Vector(-62, -110, 0)),
    Part.LineSegment(Vector(-62, -110, 0), Vector(84, -110, 0)),
    Part.LineSegment(Vector(84, -110, 0), Vector(84, 108, 0)),
    Part.LineSegment(Vector(84, 108, 0), Vector(-62, 108, 0)),
], False)
sketch10.addConstraint([
    Sketcher.Constraint("Coincident", 0, 2, 1, 1),
    Sketcher.Constraint("Coincident", 1, 2, 2, 1),
    Sketcher.Constraint("Coincident", 2, 2, 3, 1),
    Sketcher.Constraint("Coincident", 3, 2, 0, 1),
    Sketcher.Constraint("Vertical", 0),
    Sketcher.Constraint("Horizontal", 1),
    Sketcher.Constraint("Vertical", 2),
    Sketcher.Constraint("Horizontal", 3),
    Sketcher.Constraint("DistanceX", 1, 1, 1, 2, 146.237469),
    Sketcher.Constraint("DistanceY", 0, 2, 0, 1, 217.936423),
    Sketcher.Constraint("DistanceX", 0, 2, -1, 1, 61.760485),
    Sketcher.Constraint("DistanceY", 0, 2, -1, 1, 110.269678),
])
pocket5 = body.newObject("PartDesign::Pocket", "Pocket004")
pocket5.Profile = sketch10
pocket5.Length = 57
pocket5.Reversed = True

sketch11 = body.newObject("Sketcher::SketchObject", "Sketch010")
sketch11.AttachmentSupport = (doc.getObject("XZ_Plane"), [""])
sketch11.MapMode = "FlatFace"
sketch11.AttachmentOffset = App.Placement(Vector(0, 0, -2), App.Rotation())
sketch11.addGeometry([
    Part.Circle(Vector(-41, 91, 0), Vector(0, 0, 1), 2),
    Part.Circle(Vector(41, 91, 0), Vector(0, 0, 1), 2),
    Part.Circle(Vector(41, 32.5, 0), Vector(0, 0, 1), 2),
    Part.Circle(Vector(-41, 32.5, 0), Vector(0, 0, 1), 2),
    Part.Circle(Vector(-41, -91, 0), Vector(0, 0, 1), 2),
    Part.Circle(Vector(41, -91, 0), Vector(0, 0, 1), 2),
], False)
sketch11.addConstraint([
    Sketcher.Constraint("Equal", 0, 1),
    Sketcher.Constraint("Equal", 1, 2),
    Sketcher.Constraint("Equal", 2, 3),
    Sketcher.Constraint("Equal", 3, 4),
    Sketcher.Constraint("Equal", 4, 5),
    Sketcher.Constraint("Symmetric", 1, 3, 4, 3, -1, 1),
    Sketcher.Constraint("Symmetric", 0, 3, 5, 3, -1, 1),
    Sketcher.Constraint("Symmetric", 0, 3, 1, 3, -2),
    Sketcher.Constraint("Symmetric", 2, 3, 3, 3, -2),
    Sketcher.Constraint("Vertical", 1, 3, 2, 3),
    Sketcher.Constraint("Diameter", 0, 4.0),
    Sketcher.Constraint("DistanceX", 0, 3, -1, 1, 41.0),
    Sketcher.Constraint("DistanceY", -1, 1, 0, 3, 91.0),
    Sketcher.Constraint("DistanceY", -1, 1, 2, 3, 32.5),
])
pocket6 = body.newObject("PartDesign::Pocket", "Pocket005")
pocket6.Profile = sketch11
pocket6.Length = 57
pocket6.Reversed = True

sketch12 = body.newObject("Sketcher::SketchObject", "Sketch011")
sketch12.AttachmentSupport = (doc.getObject("XZ_Plane"), [""])
sketch12.MapMode = "FlatFace"
sketch12.addGeometry([
    Part.LineSegment(Vector(-37.8, 8.1, 0), Vector(-37.8, -1.9, 0)),
    Part.LineSegment(Vector(-37.8, -1.9, 0), Vector(-35.8, -1.9, 0)),
    Part.LineSegment(Vector(-35.8, -1.9, 0), Vector(-35.8, 8.1, 0)),
    Part.LineSegment(Vector(-35.8, 8.1, 0), Vector(-37.8, 8.1, 0)),
    Part.LineSegment(Vector(-37.8, -67.1, 0), Vector(-37.8, -77.1, 0)),
    Part.LineSegment(Vector(-37.8, -77.1, 0), Vector(-35.8, -77.1, 0)),
    Part.LineSegment(Vector(-35.8, -77.1, 0), Vector(-35.8, -67.1, 0)),
    Part.LineSegment(Vector(-35.8, -67.1, 0), Vector(-37.8, -67.1, 0)),
    Part.LineSegment(Vector(39.8, 10, 0), Vector(39.8, 0, 0)),
    Part.LineSegment(Vector(39.8, 0, 0), Vector(41.8, 0, 0)),
    Part.LineSegment(Vector(41.8, 0, 0), Vector(41.8, 10, 0)),
    Part.LineSegment(Vector(41.8, 10, 0), Vector(39.8, 10, 0)),
    Part.LineSegment(Vector(39.8, -67.1, 0), Vector(39.8, -77.1, 0)),
    Part.LineSegment(Vector(39.8, -77.1, 0), Vector(41.8, -77.1, 0)),
    Part.LineSegment(Vector(41.8, -77.1, 0), Vector(41.8, -67.1, 0)),
    Part.LineSegment(Vector(41.8, -67.1, 0), Vector(39.8, -67.1, 0)),
    Part.LineSegment(Vector(-6.1, -95, 0), Vector(-6.1, -97, 0)),
    Part.LineSegment(Vector(-6.1, -97, 0), Vector(3.9, -97, 0)),
    Part.LineSegment(Vector(3.9, -97, 0), Vector(3.9, -95, 0)),
    Part.LineSegment(Vector(3.9, -95, 0), Vector(-6.1, -95, 0)),
    Part.LineSegment(Vector(-6.1, 28, 0), Vector(-6.1, 26, 0)),
    Part.LineSegment(Vector(-6.1, 26, 0), Vector(3.9, 26, 0)),
    Part.LineSegment(Vector(3.9, 26, 0), Vector(3.9, 28, 0)),
    Part.LineSegment(Vector(3.9, 28, 0), Vector(-6.1, 28, 0)),
], False)
sketch12.addConstraint([
    Sketcher.Constraint("Coincident", 0, 2, 1, 1),
    Sketcher.Constraint("Coincident", 1, 2, 2, 1),
    Sketcher.Constraint("Coincident", 2, 2, 3, 1),
    Sketcher.Constraint("Coincident", 3, 2, 0, 1),
    Sketcher.Constraint("Coincident", 4, 2, 5, 1),
    Sketcher.Constraint("Coincident", 5, 2, 6, 1),
    Sketcher.Constraint("Coincident", 6, 2, 7, 1),
    Sketcher.Constraint("Coincident", 7, 2, 4, 1),
    Sketcher.Constraint("Coincident", 8, 2, 9, 1),
    Sketcher.Constraint("Coincident", 9, 2, 10, 1),
    Sketcher.Constraint("Coincident", 10, 2, 11, 1),
    Sketcher.Constraint("Coincident", 11, 2, 8, 1),
    Sketcher.Constraint("Coincident", 12, 2, 13, 1),
    Sketcher.Constraint("Coincident", 13, 2, 14, 1),
    Sketcher.Constraint("Coincident", 14, 2, 15, 1),
    Sketcher.Constraint("Coincident", 15, 2, 12, 1),
    Sketcher.Constraint("Coincident", 16, 2, 17, 1),
    Sketcher.Constraint("Coincident", 17, 2, 18, 1),
    Sketcher.Constraint("Coincident", 18, 2, 19, 1),
    Sketcher.Constraint("Coincident", 19, 2, 16, 1),
    Sketcher.Constraint("Coincident", 20, 2, 21, 1),
    Sketcher.Constraint("Coincident", 21, 2, 22, 1),
    Sketcher.Constraint("Coincident", 22, 2, 23, 1),
    Sketcher.Constraint("Coincident", 23, 2, 20, 1),
    Sketcher.Constraint("Vertical", 0),
    Sketcher.Constraint("Horizontal", 1),
    Sketcher.Constraint("Vertical", 2),
    Sketcher.Constraint("Horizontal", 3),
    Sketcher.Constraint("Vertical", 4),
    Sketcher.Constraint("Horizontal", 5),
    Sketcher.Constraint("Vertical", 6),
    Sketcher.Constraint("Horizontal", 7),
    Sketcher.Constraint("Vertical", 8),
    Sketcher.Constraint("Horizontal", 9),
    Sketcher.Constraint("Vertical", 10),
    Sketcher.Constraint("Horizontal", 11),
    Sketcher.Constraint("Vertical", 12),
    Sketcher.Constraint("Horizontal", 13),
    Sketcher.Constraint("Vertical", 14),
    Sketcher.Constraint("Horizontal", 15),
    Sketcher.Constraint("Vertical", 16),
    Sketcher.Constraint("Horizontal", 17),
    Sketcher.Constraint("Vertical", 18),
    Sketcher.Constraint("Horizontal", 19),
    Sketcher.Constraint("Vertical", 20),
    Sketcher.Constraint("Horizontal", 21),
    Sketcher.Constraint("Vertical", 22),
    Sketcher.Constraint("Horizontal", 23),
    Sketcher.Constraint("PointOnObject", 8, 2, -1),
    Sketcher.Constraint("Horizontal", 5, 2, 12, 2),
    Sketcher.Constraint("Horizontal", 7, 2, 14, 2),
    Sketcher.Constraint("Vertical", 3, 2, 4, 2),
    Sketcher.Constraint("Vertical", 2, 2, 5, 2),
    Sketcher.Constraint("Vertical", 11, 2, 12, 2),
    Sketcher.Constraint("Vertical", 10, 2, 13, 2),
    Sketcher.Constraint("Vertical", 19, 2, 20, 2),
    Sketcher.Constraint("Vertical", 18, 2, 21, 2),
    Sketcher.Constraint("Equal", 7, 9),
    Sketcher.Constraint("Equal", 23, 0),
    Sketcher.Constraint("Equal", 2, 4),
    Sketcher.Constraint("Equal", 6, 8),
    Sketcher.Constraint("Equal", 15, 16),
    Sketcher.Constraint("Equal", 18, 20),
    Sketcher.Constraint("DistanceX", 1, 1, 1, 2, 2.0),
    Sketcher.Constraint("DistanceX", 17, 1, 17, 2, 10.0),
    Sketcher.Constraint("DistanceY", 16, 2, -1, 1, 97.0),
    Sketcher.Constraint("DistanceY", -1, 1, 20, 2, 26.0),
    Sketcher.Constraint("DistanceX", 0, 2, -1, 1, 37.8),
    Sketcher.Constraint("DistanceX", -1, 1, 8, 2, 39.8),
    Sketcher.Constraint("DistanceY", 0, 2, -1, 1, 1.852536),
    Sketcher.Constraint("DistanceY", 4, 2, -1, 1, 77.122504),
    Sketcher.Constraint("DistanceX", 16, 2, -1, 1, 6.114153),
])
pad6 = body.newObject("PartDesign::Pad", "Pad005")
pad6.Profile = sketch12
pad6.Length = 5

sketch13 = body.newObject("Sketcher::SketchObject", "Sketch012")
sketch13.AttachmentSupport = (doc.getObject("YZ_Plane"), [""])
sketch13.MapMode = "FlatFace"
sketch13.AttachmentOffset = App.Placement(Vector(0, 0, -35.8), App.Rotation())
sketch13.addGeometry([
    Part.LineSegment(Vector(-3.3, 8.1, 0), Vector(-5, 8.1, 0)),
    Part.LineSegment(Vector(-5, 8.1, 0), Vector(-5, -1.9, 0)),
    Part.LineSegment(Vector(-5, -1.9, 0), Vector(-3.3, -1.9, 0)),
    Part.LineSegment(Vector(-3.3, -1.9, 0), Vector(-3.3, 8.1, 0)),
    Part.LineSegment(Vector(-3.3, -67.1, 0), Vector(-5, -67.1, 0)),
    Part.LineSegment(Vector(-5, -67.1, 0), Vector(-5, -77.1, 0)),
    Part.LineSegment(Vector(-5, -77.1, 0), Vector(-3.3, -77.1, 0)),
    Part.LineSegment(Vector(-3.3, -77.1, 0), Vector(-3.3, -67.1, 0)),
], False)
sketch13.addConstraint([
    Sketcher.Constraint("Coincident", 0, 2, 1, 1),
    Sketcher.Constraint("Coincident", 1, 2, 2, 1),
    Sketcher.Constraint("Coincident", 2, 2, 3, 1),
    Sketcher.Constraint("Coincident", 3, 2, 0, 1),
    Sketcher.Constraint("Coincident", 4, 2, 5, 1),
    Sketcher.Constraint("Coincident", 5, 2, 6, 1),
    Sketcher.Constraint("Coincident", 6, 2, 7, 1),
    Sketcher.Constraint("Coincident", 7, 2, 4, 1),
    Sketcher.Constraint("Horizontal", 0),
    Sketcher.Constraint("Vertical", 1),
    Sketcher.Constraint("Horizontal", 2),
    Sketcher.Constraint("Vertical", 3),
    Sketcher.Constraint("Horizontal", 4),
    Sketcher.Constraint("Vertical", 5),
    Sketcher.Constraint("Horizontal", 6),
    Sketcher.Constraint("Vertical", 7),
    Sketcher.Constraint("Vertical", 1, 2, 4, 2),
    Sketcher.Constraint("Vertical", 3, 2, 6, 2),
    Sketcher.Constraint("Equal", 3, 5),
    Sketcher.Constraint("DistanceY", 1, 2, 1, 1, 10.0),
    Sketcher.Constraint("DistanceX", 0, 2, 0, 1, 1.7),
    Sketcher.Constraint("DistanceX", 0, 2, -1, 1, 5.0),
    Sketcher.Constraint("DistanceY", -1, 1, 0, 2, 8.147464),
    Sketcher.Constraint("DistanceY", 4, 2, -1, 1, 67.122504),
])
pad7 = body.newObject("PartDesign::Pad", "Pad006")
pad7.Profile = sketch13
pad7.Length = 2

sketch14 = body.newObject("Sketcher::SketchObject", "Sketch013")
sketch14.AttachmentSupport = (doc.getObject("YZ_Plane"), [""])
sketch14.MapMode = "FlatFace"
sketch14.AttachmentOffset = App.Placement(Vector(0, 0, 39.8), App.Rotation())
sketch14.addGeometry([
    Part.LineSegment(Vector(-3.3, 0, 0), Vector(-5, 0, 0)),
    Part.LineSegment(Vector(-5, 0, 0), Vector(-5, 10, 0)),
    Part.LineSegment(Vector(-5, 10, 0), Vector(-3.3, 10, 0)),
    Part.LineSegment(Vector(-3.3, 10, 0), Vector(-3.3, 0, 0)),
    Part.LineSegment(Vector(-3.3, -77.1, 0), Vector(-5, -77.1, 0)),
    Part.LineSegment(Vector(-5, -77.1, 0), Vector(-5, -67.1, 0)),
    Part.LineSegment(Vector(-5, -67.1, 0), Vector(-3.3, -67.1, 0)),
    Part.LineSegment(Vector(-3.3, -67.1, 0), Vector(-3.3, -77.1, 0)),
], False)
sketch14.addConstraint([
    Sketcher.Constraint("Coincident", 0, 2, 1, 1),
    Sketcher.Constraint("Coincident", 1, 2, 2, 1),
    Sketcher.Constraint("Coincident", 2, 2, 3, 1),
    Sketcher.Constraint("Coincident", 3, 2, 0, 1),
    Sketcher.Constraint("Coincident", 4, 2, 5, 1),
    Sketcher.Constraint("Coincident", 5, 2, 6, 1),
    Sketcher.Constraint("Coincident", 6, 2, 7, 1),
    Sketcher.Constraint("Coincident", 7, 2, 4, 1),
    Sketcher.Constraint("Horizontal", 0),
    Sketcher.Constraint("Vertical", 1),
    Sketcher.Constraint("Horizontal", 2),
    Sketcher.Constraint("Vertical", 3),
    Sketcher.Constraint("Horizontal", 4),
    Sketcher.Constraint("Vertical", 5),
    Sketcher.Constraint("Horizontal", 6),
    Sketcher.Constraint("Vertical", 7),
    Sketcher.Constraint("PointOnObject", 0, 2, -1),
    Sketcher.Constraint("Vertical", 1, 2, 4, 2),
    Sketcher.Constraint("Vertical", 3, 2, 6, 2),
    Sketcher.Constraint("Equal", 3, 5),
    Sketcher.Constraint("DistanceY", 1, 1, 1, 2, 10.0),
    Sketcher.Constraint("DistanceX", 0, 2, 0, 1, 1.7),
    Sketcher.Constraint("DistanceX", 0, 2, -1, 1, 5.0),
    Sketcher.Constraint("DistanceY", 4, 2, -1, 1, 77.122504),
])
pad8 = body.newObject("PartDesign::Pad", "Pad007")
pad8.Profile = sketch14
pad8.Length = 2
pad8.Reversed = True

doc.recompute()
